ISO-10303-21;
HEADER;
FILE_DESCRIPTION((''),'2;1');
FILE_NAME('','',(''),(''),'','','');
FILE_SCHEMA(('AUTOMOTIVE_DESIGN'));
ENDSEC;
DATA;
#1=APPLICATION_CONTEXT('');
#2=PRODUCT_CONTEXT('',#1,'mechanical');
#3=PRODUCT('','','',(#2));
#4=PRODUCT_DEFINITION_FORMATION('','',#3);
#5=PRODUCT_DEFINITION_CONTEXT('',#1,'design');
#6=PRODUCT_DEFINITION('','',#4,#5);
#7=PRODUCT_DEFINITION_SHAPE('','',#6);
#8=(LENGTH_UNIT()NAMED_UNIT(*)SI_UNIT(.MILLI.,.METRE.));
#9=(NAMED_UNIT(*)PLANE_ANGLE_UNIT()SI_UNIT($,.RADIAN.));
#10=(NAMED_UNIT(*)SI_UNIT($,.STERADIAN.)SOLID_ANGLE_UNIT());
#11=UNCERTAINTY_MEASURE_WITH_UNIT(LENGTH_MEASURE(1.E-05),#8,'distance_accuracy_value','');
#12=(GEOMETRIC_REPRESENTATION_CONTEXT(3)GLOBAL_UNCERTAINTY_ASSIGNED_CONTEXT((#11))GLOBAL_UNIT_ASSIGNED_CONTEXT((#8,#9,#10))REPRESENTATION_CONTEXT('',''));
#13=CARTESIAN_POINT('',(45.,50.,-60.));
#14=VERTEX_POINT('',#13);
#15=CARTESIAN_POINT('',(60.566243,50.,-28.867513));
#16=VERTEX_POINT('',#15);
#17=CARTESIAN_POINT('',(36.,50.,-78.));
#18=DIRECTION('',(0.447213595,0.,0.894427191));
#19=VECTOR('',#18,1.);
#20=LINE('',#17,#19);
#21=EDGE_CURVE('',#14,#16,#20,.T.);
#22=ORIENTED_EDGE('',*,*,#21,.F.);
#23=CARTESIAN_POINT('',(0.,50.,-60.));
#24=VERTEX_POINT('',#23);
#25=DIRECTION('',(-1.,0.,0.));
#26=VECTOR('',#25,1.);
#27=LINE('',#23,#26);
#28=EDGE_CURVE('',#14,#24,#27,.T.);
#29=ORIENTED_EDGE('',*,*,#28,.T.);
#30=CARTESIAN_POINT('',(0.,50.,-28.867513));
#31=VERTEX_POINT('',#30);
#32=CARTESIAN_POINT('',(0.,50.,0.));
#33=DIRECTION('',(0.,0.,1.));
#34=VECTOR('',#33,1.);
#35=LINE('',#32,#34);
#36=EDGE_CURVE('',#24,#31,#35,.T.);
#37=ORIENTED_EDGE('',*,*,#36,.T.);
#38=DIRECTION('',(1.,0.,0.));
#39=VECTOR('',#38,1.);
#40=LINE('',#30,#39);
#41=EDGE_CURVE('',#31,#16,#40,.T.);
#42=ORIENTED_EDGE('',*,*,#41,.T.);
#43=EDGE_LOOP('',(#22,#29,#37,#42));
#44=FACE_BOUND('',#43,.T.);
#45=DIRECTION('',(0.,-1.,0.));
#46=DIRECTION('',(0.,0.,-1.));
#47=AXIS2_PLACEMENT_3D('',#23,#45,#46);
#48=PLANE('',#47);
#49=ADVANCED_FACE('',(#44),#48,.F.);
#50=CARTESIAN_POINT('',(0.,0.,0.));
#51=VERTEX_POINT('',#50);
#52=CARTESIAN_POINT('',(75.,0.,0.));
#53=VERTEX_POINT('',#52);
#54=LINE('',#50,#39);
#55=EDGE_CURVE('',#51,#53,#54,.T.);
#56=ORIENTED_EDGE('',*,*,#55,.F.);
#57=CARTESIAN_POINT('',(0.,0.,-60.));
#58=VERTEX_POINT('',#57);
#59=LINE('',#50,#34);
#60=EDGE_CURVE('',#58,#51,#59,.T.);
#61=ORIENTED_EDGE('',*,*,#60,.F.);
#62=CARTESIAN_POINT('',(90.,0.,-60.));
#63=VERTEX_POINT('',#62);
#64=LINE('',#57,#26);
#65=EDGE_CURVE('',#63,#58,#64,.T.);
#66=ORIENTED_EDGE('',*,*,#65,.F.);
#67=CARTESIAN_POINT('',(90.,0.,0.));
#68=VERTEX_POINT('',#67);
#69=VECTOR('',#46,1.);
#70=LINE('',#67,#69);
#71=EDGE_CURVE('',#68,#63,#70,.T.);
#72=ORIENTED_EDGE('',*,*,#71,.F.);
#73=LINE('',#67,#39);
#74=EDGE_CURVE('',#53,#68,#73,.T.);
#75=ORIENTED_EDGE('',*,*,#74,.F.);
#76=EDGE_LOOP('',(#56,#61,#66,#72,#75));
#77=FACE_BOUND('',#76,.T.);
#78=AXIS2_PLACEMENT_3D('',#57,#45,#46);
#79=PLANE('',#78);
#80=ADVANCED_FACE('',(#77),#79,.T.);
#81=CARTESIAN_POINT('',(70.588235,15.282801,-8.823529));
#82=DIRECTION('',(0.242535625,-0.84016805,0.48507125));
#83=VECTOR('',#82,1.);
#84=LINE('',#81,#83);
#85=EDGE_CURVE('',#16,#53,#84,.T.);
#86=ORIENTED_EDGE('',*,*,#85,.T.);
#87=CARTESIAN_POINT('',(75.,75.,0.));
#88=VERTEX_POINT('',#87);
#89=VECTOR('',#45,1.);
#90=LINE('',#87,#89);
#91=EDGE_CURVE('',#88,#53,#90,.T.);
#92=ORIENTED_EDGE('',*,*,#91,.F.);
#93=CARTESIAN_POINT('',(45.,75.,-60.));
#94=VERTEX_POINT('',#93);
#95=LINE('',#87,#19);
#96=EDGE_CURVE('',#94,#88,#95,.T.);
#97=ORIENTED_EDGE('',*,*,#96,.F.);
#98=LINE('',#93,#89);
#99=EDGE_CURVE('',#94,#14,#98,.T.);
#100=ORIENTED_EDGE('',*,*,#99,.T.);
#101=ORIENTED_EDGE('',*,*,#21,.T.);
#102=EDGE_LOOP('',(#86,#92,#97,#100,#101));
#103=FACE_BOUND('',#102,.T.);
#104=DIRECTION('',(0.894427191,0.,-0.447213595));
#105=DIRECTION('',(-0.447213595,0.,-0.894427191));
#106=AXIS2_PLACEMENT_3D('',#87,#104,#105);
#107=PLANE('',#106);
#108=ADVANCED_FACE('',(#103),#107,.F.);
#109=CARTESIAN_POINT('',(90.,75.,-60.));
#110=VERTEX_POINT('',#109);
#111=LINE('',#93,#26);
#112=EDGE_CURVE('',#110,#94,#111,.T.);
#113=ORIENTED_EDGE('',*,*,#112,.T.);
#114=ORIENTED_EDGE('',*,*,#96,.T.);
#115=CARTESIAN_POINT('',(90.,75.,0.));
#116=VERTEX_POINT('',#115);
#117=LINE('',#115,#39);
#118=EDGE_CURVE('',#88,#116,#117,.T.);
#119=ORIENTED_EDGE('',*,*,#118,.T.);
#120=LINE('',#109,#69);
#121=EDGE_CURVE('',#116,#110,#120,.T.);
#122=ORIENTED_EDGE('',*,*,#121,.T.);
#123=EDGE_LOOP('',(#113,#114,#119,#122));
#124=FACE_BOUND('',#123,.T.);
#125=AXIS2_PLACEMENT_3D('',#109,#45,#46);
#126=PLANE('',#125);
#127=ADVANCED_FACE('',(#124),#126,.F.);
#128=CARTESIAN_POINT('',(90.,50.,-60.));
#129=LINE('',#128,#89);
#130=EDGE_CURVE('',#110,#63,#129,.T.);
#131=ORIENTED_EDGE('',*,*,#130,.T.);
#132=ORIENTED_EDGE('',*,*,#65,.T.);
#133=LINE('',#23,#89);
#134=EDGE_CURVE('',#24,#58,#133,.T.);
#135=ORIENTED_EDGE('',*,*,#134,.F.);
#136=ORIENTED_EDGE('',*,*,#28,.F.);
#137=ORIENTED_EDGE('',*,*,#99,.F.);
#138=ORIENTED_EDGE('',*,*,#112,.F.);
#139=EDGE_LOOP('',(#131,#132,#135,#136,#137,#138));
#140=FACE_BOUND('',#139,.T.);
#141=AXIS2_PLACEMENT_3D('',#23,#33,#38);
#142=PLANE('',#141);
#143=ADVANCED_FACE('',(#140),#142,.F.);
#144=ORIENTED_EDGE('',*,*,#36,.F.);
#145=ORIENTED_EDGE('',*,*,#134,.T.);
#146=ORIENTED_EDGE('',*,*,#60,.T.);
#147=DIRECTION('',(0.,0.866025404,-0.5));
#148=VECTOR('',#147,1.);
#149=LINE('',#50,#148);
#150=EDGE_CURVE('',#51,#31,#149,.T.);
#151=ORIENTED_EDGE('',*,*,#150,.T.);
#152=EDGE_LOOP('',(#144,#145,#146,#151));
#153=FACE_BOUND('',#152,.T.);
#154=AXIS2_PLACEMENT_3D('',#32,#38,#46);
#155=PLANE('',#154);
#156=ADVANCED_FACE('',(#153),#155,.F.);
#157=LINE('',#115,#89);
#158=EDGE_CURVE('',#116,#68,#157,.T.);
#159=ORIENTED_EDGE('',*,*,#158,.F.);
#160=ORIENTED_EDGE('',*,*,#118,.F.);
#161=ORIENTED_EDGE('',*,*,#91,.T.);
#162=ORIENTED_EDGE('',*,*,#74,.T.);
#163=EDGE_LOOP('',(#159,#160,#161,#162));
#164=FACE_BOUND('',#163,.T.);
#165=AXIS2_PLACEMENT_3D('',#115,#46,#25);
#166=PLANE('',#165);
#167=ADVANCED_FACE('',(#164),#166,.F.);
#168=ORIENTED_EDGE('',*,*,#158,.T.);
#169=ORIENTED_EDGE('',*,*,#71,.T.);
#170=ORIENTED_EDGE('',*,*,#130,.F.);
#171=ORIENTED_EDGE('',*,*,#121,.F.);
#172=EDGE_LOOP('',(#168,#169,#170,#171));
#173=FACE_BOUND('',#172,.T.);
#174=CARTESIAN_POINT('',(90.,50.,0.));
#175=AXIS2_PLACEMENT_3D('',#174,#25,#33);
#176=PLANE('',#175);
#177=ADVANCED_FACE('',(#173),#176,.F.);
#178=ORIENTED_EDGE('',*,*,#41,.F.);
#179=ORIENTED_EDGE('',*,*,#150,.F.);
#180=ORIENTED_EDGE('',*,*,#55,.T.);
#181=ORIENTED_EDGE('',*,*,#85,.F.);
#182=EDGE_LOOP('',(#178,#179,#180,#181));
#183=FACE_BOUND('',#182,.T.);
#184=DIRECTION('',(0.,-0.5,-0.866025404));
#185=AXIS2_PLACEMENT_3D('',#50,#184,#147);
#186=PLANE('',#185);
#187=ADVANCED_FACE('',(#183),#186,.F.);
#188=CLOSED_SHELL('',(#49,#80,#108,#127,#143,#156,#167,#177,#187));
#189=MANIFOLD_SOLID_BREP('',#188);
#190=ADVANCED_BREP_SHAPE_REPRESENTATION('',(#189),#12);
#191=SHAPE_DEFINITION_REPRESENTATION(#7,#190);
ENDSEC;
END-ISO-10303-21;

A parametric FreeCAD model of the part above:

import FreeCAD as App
import Part
import Sketcher
Q = App.Units.Quantity


def add_polygon(sketch, points):
    """Adds a closed chain of lines whose ends are joined by coincident constraints."""
    first, n = sketch.GeometryCount, len(points)
    for a, b in zip(points, points[1:] + points[:1]):
        sketch.addGeometry(Part.LineSegment(App.Vector(*a, 0), App.Vector(*b, 0)), False)
    for i in range(n):
        sketch.addConstraint(Sketcher.Constraint("Coincident", first + i, 2, first + (i + 1) % n, 1))

doc = App.newDocument("Part")
body = doc.addObject("PartDesign::Body", "Body")

# Sketch on XZ plane
sketch1 = body.newObject("Sketcher::SketchObject", "Sketch")
sketch1.AttachmentSupport = (doc.getObject("XZ_Plane"), [""])
sketch1.MapMode = "FlatFace"
add_polygon(sketch1, [(0, -60), (0, 0), (90, 0), (90, -60)])  # lines 0-3
sketch1.addConstraint([
    Sketcher.Constraint("Vertical", 0),
    Sketcher.Constraint("Horizontal", 1),
    Sketcher.Constraint("Vertical", 2),
    Sketcher.Constraint("Horizontal", 3),
    Sketcher.Constraint("Coincident", 0, 2, -1, 1),
    Sketcher.Constraint("DistanceX", 1, 1, 1, 2, 90.0),
    Sketcher.Constraint("DistanceY", 0, 1, 0, 2, 60.0),
])
pad1 = body.newObject("PartDesign::Pad", "Pad")
pad1.Profile = sketch1
pad1.Length = 50
pad1.Reversed = True

# Sketch on YZ plane
sketch2 = body.newObject("Sketcher::SketchObject", "Sketch001")
sketch2.AttachmentSupport = (doc.getObject("YZ_Plane"), [""])
sketch2.MapMode = "FlatFace"
sketch2.AttachmentOffset = App.Placement(App.Vector(0, 0, 90), App.Rotation())
add_polygon(sketch2, [(0, 0), (50, -28.867513), (50, 0)])  # lines 0-2
sketch2.addConstraint([
    Sketcher.Constraint("Vertical", 1),
    Sketcher.Constraint("Horizontal", 2),
    Sketcher.Constraint("Coincident", 2, 2, -1, 1),
    Sketcher.Constraint("DistanceX", 2, 2, 2, 1, 50.0),
    Sketcher.Constraint("Angle", 0, Q("-30 deg")),
])
pocket1 = body.newObject("PartDesign::Pocket", "Pocket")
pocket1.Profile = sketch2
pocket1.Type = "ThroughAll"

# Sketch on XZ plane
sketch3 = body.newObject("Sketcher::SketchObject", "Sketch002")
sketch3.AttachmentSupport = (doc.getObject("XZ_Plane"), [""])
sketch3.MapMode = "FlatFace"
add_polygon(sketch3, [(90, 0), (90, -60), (45, -60), (75, 0)])  # lines 0-3
sketch3.addConstraint([
    Sketcher.Constraint("Vertical", 0),
    Sketcher.Constraint("Horizontal", 1),
    Sketcher.Constraint("Horizontal", 3),
    Sketcher.Constraint("PointOnObject", 2, 2, -1),
    Sketcher.Constraint("DistanceX", 1, 2, 1, 1, 45.0),
    Sketcher.Constraint("DistanceX", 3, 1, 3, 2, 15.0),
    Sketcher.Constraint("DistanceY", 0, 2, 0, 1, 60.0),
    Sketcher.Constraint("DistanceX", -1, 1, 0, 2, 90.0),
])
pad2 = body.newObject("PartDesign::Pad", "Pad001")
pad2.Profile = sketch3
pad2.Length = 75
pad2.Reversed = True

doc.recompute()
